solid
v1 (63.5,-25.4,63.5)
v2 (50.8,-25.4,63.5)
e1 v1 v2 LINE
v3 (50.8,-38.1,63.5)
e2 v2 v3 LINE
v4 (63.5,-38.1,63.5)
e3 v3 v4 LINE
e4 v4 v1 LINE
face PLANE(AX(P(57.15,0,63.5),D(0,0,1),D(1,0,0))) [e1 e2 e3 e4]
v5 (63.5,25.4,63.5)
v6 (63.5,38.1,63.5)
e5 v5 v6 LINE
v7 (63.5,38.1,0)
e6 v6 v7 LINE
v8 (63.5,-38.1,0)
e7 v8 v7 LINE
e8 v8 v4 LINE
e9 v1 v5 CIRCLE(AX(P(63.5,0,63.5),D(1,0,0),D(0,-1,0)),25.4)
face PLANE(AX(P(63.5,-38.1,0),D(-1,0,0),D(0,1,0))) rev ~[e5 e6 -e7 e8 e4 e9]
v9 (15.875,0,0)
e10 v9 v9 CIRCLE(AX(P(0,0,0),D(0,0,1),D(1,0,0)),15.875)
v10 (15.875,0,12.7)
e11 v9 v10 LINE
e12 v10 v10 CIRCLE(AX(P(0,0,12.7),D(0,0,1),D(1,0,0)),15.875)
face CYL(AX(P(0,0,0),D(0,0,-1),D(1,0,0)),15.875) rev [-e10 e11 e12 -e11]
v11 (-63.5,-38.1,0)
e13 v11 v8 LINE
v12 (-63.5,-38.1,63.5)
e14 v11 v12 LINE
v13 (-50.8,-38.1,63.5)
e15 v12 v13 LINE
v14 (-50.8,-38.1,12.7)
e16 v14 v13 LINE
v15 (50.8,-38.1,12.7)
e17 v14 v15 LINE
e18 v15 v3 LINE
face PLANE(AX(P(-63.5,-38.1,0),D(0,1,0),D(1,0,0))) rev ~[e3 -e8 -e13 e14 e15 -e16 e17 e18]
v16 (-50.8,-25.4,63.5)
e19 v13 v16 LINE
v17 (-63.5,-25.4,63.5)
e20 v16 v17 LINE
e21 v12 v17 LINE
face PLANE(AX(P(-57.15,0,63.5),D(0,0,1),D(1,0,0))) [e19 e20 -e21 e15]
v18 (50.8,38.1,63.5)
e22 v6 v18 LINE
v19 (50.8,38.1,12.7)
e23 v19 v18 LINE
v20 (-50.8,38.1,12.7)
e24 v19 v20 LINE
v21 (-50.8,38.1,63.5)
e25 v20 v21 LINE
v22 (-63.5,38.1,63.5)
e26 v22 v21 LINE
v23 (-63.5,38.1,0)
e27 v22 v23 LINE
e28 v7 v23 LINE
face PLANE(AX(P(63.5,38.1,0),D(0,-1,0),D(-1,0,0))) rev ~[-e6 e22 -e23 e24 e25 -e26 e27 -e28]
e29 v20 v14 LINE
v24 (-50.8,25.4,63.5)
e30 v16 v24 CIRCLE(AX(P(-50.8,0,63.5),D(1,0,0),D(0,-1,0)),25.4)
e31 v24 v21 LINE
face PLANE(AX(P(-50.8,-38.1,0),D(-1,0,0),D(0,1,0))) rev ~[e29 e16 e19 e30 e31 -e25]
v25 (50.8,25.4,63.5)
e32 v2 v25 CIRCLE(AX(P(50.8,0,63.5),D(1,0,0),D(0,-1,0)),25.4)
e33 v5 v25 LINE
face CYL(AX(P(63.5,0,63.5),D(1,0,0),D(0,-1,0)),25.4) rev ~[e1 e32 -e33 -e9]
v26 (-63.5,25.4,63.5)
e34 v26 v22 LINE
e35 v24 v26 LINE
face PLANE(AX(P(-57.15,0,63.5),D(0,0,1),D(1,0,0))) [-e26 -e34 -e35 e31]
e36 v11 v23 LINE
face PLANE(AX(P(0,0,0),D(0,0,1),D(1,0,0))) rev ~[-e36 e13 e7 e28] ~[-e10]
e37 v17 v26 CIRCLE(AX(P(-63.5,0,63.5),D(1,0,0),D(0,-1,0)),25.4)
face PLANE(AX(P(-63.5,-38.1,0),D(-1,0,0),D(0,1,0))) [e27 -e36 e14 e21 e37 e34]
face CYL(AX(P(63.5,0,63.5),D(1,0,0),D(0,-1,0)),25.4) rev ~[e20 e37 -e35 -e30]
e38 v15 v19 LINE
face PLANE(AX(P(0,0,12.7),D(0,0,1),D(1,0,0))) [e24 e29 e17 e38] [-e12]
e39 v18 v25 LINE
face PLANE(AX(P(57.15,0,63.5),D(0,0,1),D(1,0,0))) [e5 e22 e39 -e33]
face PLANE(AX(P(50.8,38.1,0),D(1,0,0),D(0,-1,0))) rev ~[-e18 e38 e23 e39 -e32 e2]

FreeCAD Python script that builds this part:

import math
import FreeCAD as App
import Part
import Sketcher
Q = App.Units.Quantity

doc = App.newDocument("Part")
body = doc.addObject("PartDesign::Body", "Body")

sketch1 = body.newObject("Sketcher::SketchObject", "Sketch")
sketch1.AttachmentSupport = (doc.getObject("XY_Plane"), [""])
sketch1.MapMode = "FlatFace"
sketch1.addGeometry(Part.LineSegment(App.Vector(-64, 38, 0), App.Vector(-64, -38, 0)), False)
sketch1.addGeometry(Part.LineSegment(App.Vector(-64, -38, 0), App.Vector(64, -38, 0)), False)
sketch1.addGeometry(Part.LineSegment(App.Vector(64, -38, 0), App.Vector(64, 38, 0)), False)
sketch1.addGeometry(Part.LineSegment(App.Vector(64, 38, 0), App.Vector(-64, 38, 0)), False)
sketch1.addGeometry(Part.Circle(App.Vector(0, 0, 0), App.Vector(0, 0, 1), 16), False)
sketch1.addConstraint(Sketcher.Constraint("Coincident", 0, 2, 1, 1))
sketch1.addConstraint(Sketcher.Constraint("Coincident", 1, 2, 2, 1))
sketch1.addConstraint(Sketcher.Constraint("Coincident", 2, 2, 3, 1))
sketch1.addConstraint(Sketcher.Constraint("Coincident", 3, 2, 0, 1))
sketch1.addConstraint(Sketcher.Constraint("Vertical", 0))
sketch1.addConstraint(Sketcher.Constraint("Horizontal", 1))
sketch1.addConstraint(Sketcher.Constraint("Vertical", 2))
sketch1.addConstraint(Sketcher.Constraint("Horizontal", 3))
sketch1.addConstraint(Sketcher.Constraint("Coincident", 4, 3, -1, 1))
sketch1.addConstraint(Sketcher.Constraint("Symmetric", 0, 2, 2, 2, -1, 1))
sketch1.addConstraint(Sketcher.Constraint("Diameter", 4, Q("1.25 in")))
sketch1.addConstraint(Sketcher.Constraint("DistanceX", 1, 1, 1, 2, Q("5 in")))
sketch1.addConstraint(Sketcher.Constraint("DistanceY", 0, 2, 0, 1, Q("3 in")))
pad1 = body.newObject("PartDesign::Pad", "Pad")
pad1.Profile = sketch1
pad1.Length = Q("0.5 in")

sketch2 = body.newObject("Sketcher::SketchObject", "Sketch001")
sketch2.AttachmentSupport = (doc.getObject("XY_Plane"), [""])
sketch2.MapMode = "FlatFace"
sketch2.addGeometry(Part.LineSegment(App.Vector(-64, 38, 0), App.Vector(-64, -38, 0)), False)
sketch2.addGeometry(Part.LineSegment(App.Vector(-64, -38, 0), App.Vector(-51, -38, 0)), False)
sketch2.addGeometry(Part.LineSegment(App.Vector(-51, -38, 0), App.Vector(-51, 38, 0)), False)
sketch2.addGeometry(Part.LineSegment(App.Vector(-51, 38, 0), App.Vector(-64, 38, 0)), False)
sketch2.addGeometry(Part.LineSegment(App.Vector(64, 38, 0), App.Vector(51, 38, 0)), False)
sketch2.addGeometry(Part.LineSegment(App.Vector(51, 38, 0), App.Vector(51, -38, 0)), False)
sketch2.addGeometry(Part.LineSegment(App.Vector(51, -38, 0), App.Vector(64, -38, 0)), False)
sketch2.addGeometry(Part.LineSegment(App.Vector(64, -38, 0), App.Vector(64, 38, 0)), False)
sketch2.addConstraint(Sketcher.Constraint("Coincident", 0, 2, 1, 1))
sketch2.addConstraint(Sketcher.Constraint("Coincident", 1, 2, 2, 1))
sketch2.addConstraint(Sketcher.Constraint("Coincident", 2, 2, 3, 1))
sketch2.addConstraint(Sketcher.Constraint("Coincident", 3, 2, 0, 1))
sketch2.addConstraint(Sketcher.Constraint("Coincident", 4, 2, 5, 1))
sketch2.addConstraint(Sketcher.Constraint("Coincident", 5, 2, 6, 1))
sketch2.addConstraint(Sketcher.Constraint("Coincident", 6, 2, 7, 1))
sketch2.addConstraint(Sketcher.Constraint("Coincident", 7, 2, 4, 1))
sketch2.addConstraint(Sketcher.Constraint("Vertical", 0))
sketch2.addConstraint(Sketcher.Constraint("Horizontal", 1))
sketch2.addConstraint(Sketcher.Constraint("Vertical", 2))
sketch2.addConstraint(Sketcher.Constraint("Horizontal", 3))
sketch2.addConstraint(Sketcher.Constraint("Horizontal", 4))
sketch2.addConstraint(Sketcher.Constraint("Vertical", 5))
sketch2.addConstraint(Sketcher.Constraint("Horizontal", 6))
sketch2.addConstraint(Sketcher.Constraint("Vertical", 7))
sketch2.addConstraint(Sketcher.Constraint("Symmetric", 1, 2, 4, 2, -1, 1))
sketch2.addConstraint(Sketcher.Constraint("Symmetric", 3, 2, 6, 2, -1, 1))
sketch2.addConstraint(Sketcher.Constraint("Horizontal", 3, 2, 4, 2))
sketch2.addConstraint(Sketcher.Constraint("DistanceY", 0, 2, 0, 1, Q("3 in")))
sketch2.addConstraint(Sketcher.Constraint("DistanceX", 1, 1, 1, 2, Q("0.5 in")))
sketch2.addConstraint(Sketcher.Constraint("DistanceX", 1, 2, -1, 1, Q("2 in")))
pad2 = body.newObject("PartDesign::Pad", "Pad001")
pad2.Profile = sketch2
pad2.Length = Q("2.5 in")

sketch3 = body.newObject("Sketcher::SketchObject", "Sketch002")
sketch3.AttachmentSupport = (doc.getObject("YZ_Plane"), [""])
sketch3.MapMode = "FlatFace"
sketch3.AttachmentOffset = App.Placement(App.Vector(0, 0, 2.5 * 25.4), App.Rotation())
sketch3.addGeometry(Part.ArcOfCircle(Part.Circle(App.Vector(0, 64, 0), App.Vector(0, 0, 1), 25), math.radians(180), math.radians(360)), False)
sketch3.addGeometry(Part.LineSegment(App.Vector(25, 64, 0), App.Vector(-25, 64, 0)), False)
sketch3.addConstraint(Sketcher.Constraint("Coincident", 0, 1, 1, 2))
sketch3.addConstraint(Sketcher.Constraint("Coincident", 1, 1, 0, 2))
sketch3.addConstraint(Sketcher.Constraint("Horizontal", 1))
sketch3.addConstraint(Sketcher.Constraint("PointOnObject", 0, 3, -2))
sketch3.addConstraint(Sketcher.Constraint("Radius", 0, Q("1 in")))
sketch3.addConstraint(Sketcher.Constraint("DistanceY", -1, 1, 0, 3, Q("2.5 in")))
sketch3.addConstraint(Sketcher.Constraint("DistanceY", -1, 1, 0, 1, Q("2.5 in")))
pocket1 = body.newObject("PartDesign::Pocket", "Pocket")
pocket1.Profile = sketch3
pocket1.Type = "ThroughAll"

doc.recompute()
